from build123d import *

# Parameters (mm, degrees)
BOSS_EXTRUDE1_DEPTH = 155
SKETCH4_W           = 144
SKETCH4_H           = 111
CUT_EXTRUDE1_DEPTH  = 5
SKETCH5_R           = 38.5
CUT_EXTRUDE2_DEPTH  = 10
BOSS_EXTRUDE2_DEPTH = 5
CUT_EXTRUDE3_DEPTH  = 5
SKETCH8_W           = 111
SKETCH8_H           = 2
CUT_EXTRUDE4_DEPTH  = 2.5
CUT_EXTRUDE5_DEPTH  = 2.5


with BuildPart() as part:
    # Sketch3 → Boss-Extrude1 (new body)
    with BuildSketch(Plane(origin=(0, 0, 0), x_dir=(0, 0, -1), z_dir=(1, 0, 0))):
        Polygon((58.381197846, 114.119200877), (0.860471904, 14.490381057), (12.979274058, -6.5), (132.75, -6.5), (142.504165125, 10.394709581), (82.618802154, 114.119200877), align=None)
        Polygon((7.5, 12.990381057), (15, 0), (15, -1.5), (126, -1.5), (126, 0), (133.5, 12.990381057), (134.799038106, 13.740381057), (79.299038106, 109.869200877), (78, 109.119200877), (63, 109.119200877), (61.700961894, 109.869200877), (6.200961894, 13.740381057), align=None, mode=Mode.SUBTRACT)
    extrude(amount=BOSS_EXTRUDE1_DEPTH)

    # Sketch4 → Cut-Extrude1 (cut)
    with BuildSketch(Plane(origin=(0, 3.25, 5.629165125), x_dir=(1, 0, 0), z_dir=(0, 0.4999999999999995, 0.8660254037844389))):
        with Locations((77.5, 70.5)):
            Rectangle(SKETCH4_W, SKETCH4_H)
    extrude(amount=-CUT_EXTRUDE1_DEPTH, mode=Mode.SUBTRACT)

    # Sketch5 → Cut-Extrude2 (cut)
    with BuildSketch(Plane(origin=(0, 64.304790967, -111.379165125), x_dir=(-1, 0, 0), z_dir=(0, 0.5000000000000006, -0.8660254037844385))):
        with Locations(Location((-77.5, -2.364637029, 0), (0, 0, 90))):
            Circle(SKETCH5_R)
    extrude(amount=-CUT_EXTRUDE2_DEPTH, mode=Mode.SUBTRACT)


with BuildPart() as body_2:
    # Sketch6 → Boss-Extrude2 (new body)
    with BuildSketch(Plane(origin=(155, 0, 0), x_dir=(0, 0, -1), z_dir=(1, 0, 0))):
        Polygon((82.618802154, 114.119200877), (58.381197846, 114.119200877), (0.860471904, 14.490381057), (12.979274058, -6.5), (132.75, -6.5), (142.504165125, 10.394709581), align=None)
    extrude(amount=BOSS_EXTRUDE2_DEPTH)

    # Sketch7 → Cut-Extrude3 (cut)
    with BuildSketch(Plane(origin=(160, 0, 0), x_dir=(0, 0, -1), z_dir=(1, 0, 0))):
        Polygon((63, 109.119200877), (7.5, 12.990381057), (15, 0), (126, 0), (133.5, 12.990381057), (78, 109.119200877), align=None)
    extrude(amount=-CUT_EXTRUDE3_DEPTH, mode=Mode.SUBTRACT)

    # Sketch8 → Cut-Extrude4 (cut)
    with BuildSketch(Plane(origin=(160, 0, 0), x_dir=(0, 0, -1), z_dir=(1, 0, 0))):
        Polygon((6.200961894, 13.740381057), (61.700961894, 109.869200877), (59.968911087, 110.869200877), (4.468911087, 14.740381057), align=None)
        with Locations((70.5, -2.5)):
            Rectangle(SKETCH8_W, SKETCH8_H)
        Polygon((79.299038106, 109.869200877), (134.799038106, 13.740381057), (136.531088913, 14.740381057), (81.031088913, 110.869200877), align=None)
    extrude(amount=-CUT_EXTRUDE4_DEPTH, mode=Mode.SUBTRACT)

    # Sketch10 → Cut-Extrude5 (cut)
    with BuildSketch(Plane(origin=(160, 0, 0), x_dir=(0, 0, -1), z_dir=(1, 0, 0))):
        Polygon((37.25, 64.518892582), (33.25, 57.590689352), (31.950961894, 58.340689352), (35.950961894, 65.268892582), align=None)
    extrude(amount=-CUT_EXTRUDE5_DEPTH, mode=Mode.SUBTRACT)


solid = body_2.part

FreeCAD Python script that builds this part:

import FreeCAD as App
import Part
import Sketcher
Q = App.Units.Quantity

doc = App.newDocument("Part")
params = doc.addObject("Spreadsheet::Sheet", "Params")
for row, (alias, value) in enumerate([
    ("sketch1_height", "15 mm"),
    ("sketch1_height2", "111 mm"),
    ("sketch1_length", "15 mm"),
    ("sketch1_width", "1.5 mm"),
    ("sketch1_length2", "1.5 mm"),
    ("pad1_length", "155 mm"),
    ("sketch2_width", "144 mm"),
    ("sketch2_height", "111 mm"),
    ("pocket1_length", "5 mm"),
    ("sketch3_diameter", "77 mm"),
    ("pocket2_length", "10 mm"),
    ("pad2_length", "5 mm"),
    ("sketch5_height", "111 mm"),
    ("sketch5_height2", "15 mm"),
    ("sketch5_length", "111 mm"),
    ("pocket3_length", "5 mm"),
    ("sketch6_width", "2 mm"),
    ("sketch6_height", "111 mm"),
    ("sketch6_length", "111 mm"),
    ("sketch6_length2", "2 mm"),
    ("pocket4_length", "2.5 mm"),
    ("sketch7_length", "8 mm"),
    ("sketch7_length2", "1.5 mm"),
    ("pocket5_length", "2.5 mm"),
], start=1):
    params.set(f"A{row}", alias)
    params.set(f"B{row}", "=" + value)
    params.setAlias(f"B{row}", alias)

body = doc.addObject("PartDesign::Body", "Body")

# Sketch on YZ plane
sketch1 = body.newObject("Sketcher::SketchObject", "Sketch")
sketch1.AttachmentSupport = (doc.getObject("YZ_Plane"), [""])
sketch1.MapMode = "FlatFace"
sketch1.addGeometry(Part.LineSegment(App.Vector(114.1, -58.4, 0), App.Vector(14.5, -0.9, 0)), False)
sketch1.addGeometry(Part.LineSegment(App.Vector(14.5, -0.9, 0), App.Vector(-6.5, -13, 0)), False)
sketch1.addGeometry(Part.LineSegment(App.Vector(-6.5, -13, 0), App.Vector(-6.5, -132.8, 0)), False)
sketch1.addGeometry(Part.LineSegment(App.Vector(-6.5, -132.8, 0), App.Vector(10.4, -142.5, 0)), False)
sketch1.addGeometry(Part.LineSegment(App.Vector(10.4, -142.5, 0), App.Vector(114.1, -82.6, 0)), False)
sketch1.addGeometry(Part.LineSegment(App.Vector(114.1, -82.6, 0), App.Vector(114.1, -58.4, 0)), False)
sketch1.addGeometry(Part.LineSegment(App.Vector(0, -15, 0), App.Vector(13, -7.5, 0)), False)
sketch1.addGeometry(Part.LineSegment(App.Vector(13, -7.5, 0), App.Vector(13.7, -6.2, 0)), False)
sketch1.addGeometry(Part.LineSegment(App.Vector(13.7, -6.2, 0), App.Vector(109.9, -61.7, 0)), False)
sketch1.addGeometry(Part.LineSegment(App.Vector(109.9, -61.7, 0), App.Vector(109.1, -63, 0)), False)
sketch1.addGeometry(Part.LineSegment(App.Vector(109.1, -63, 0), App.Vector(109.1, -78, 0)), False)
sketch1.addGeometry(Part.LineSegment(App.Vector(109.1, -78, 0), App.Vector(109.9, -79.3, 0)), False)
sketch1.addGeometry(Part.LineSegment(App.Vector(109.9, -79.3, 0), App.Vector(13.7, -134.8, 0)), False)
sketch1.addGeometry(Part.LineSegment(App.Vector(13.7, -134.8, 0), App.Vector(13, -133.5, 0)), False)
sketch1.addGeometry(Part.LineSegment(App.Vector(13, -133.5, 0), App.Vector(0, -126, 0)), False)
sketch1.addGeometry(Part.LineSegment(App.Vector(0, -126, 0), App.Vector(-1.5, -126, 0)), False)
sketch1.addGeometry(Part.LineSegment(App.Vector(-1.5, -126, 0), App.Vector(-1.5, -15, 0)), False)
sketch1.addGeometry(Part.LineSegment(App.Vector(-1.5, -15, 0), App.Vector(0, -15, 0)), False)
sketch1.addConstraint(Sketcher.Constraint("Coincident", 0, 2, 1, 1))
sketch1.addConstraint(Sketcher.Constraint("Coincident", 1, 2, 2, 1))
sketch1.addConstraint(Sketcher.Constraint("Coincident", 2, 2, 3, 1))
sketch1.addConstraint(Sketcher.Constraint("Coincident", 3, 2, 4, 1))
sketch1.addConstraint(Sketcher.Constraint("Coincident", 4, 2, 5, 1))
sketch1.addConstraint(Sketcher.Constraint("Coincident", 5, 2, 0, 1))
sketch1.addConstraint(Sketcher.Constraint("Coincident", 6, 2, 7, 1))
sketch1.addConstraint(Sketcher.Constraint("Coincident", 7, 2, 8, 1))
sketch1.addConstraint(Sketcher.Constraint("Coincident", 8, 2, 9, 1))
sketch1.addConstraint(Sketcher.Constraint("Coincident", 9, 2, 10, 1))
sketch1.addConstraint(Sketcher.Constraint("Coincident", 10, 2, 11, 1))
sketch1.addConstraint(Sketcher.Constraint("Coincident", 11, 2, 12, 1))
sketch1.addConstraint(Sketcher.Constraint("Coincident", 12, 2, 13, 1))
sketch1.addConstraint(Sketcher.Constraint("Coincident", 13, 2, 14, 1))
sketch1.addConstraint(Sketcher.Constraint("Coincident", 14, 2, 15, 1))
sketch1.addConstraint(Sketcher.Constraint("Coincident", 15, 2, 16, 1))
sketch1.addConstraint(Sketcher.Constraint("Coincident", 16, 2, 17, 1))
sketch1.addConstraint(Sketcher.Constraint("Coincident", 17, 2, 6, 1))
sketch1.addConstraint(Sketcher.Constraint("Vertical", 2))
sketch1.addConstraint(Sketcher.Constraint("Vertical", 5))
sketch1.addConstraint(Sketcher.Constraint("Vertical", 10))
sketch1.addConstraint(Sketcher.Constraint("Horizontal", 15))
sketch1.addConstraint(Sketcher.Constraint("Vertical", 16))
sketch1.addConstraint(Sketcher.Constraint("Horizontal", 17))
sketch1.addConstraint(Sketcher.Constraint("PointOnObject", 14, 2, -2))
sketch1.addConstraint(Sketcher.Constraint("PointOnObject", 17, 2, -2))
sketch1.addConstraint(Sketcher.Constraint("Parallel", 0, 3))
sketch1.addConstraint(Sketcher.Constraint("Parallel", 1, 4))
sketch1.addConstraint(Sketcher.Constraint("Parallel", 4, 6))
sketch1.addConstraint(Sketcher.Constraint("Perpendicular", 3, 7))
sketch1.addConstraint(Sketcher.Constraint("Perpendicular", 7, 8))
sketch1.addConstraint(Sketcher.Constraint("Perpendicular", 8, 9))
sketch1.addConstraint(Sketcher.Constraint("Perpendicular", 6, 11))
sketch1.addConstraint(Sketcher.Constraint("Perpendicular", 11, 12))
sketch1.addConstraint(Sketcher.Constraint("Perpendicular", 12, 13))
sketch1.addConstraint(Sketcher.Constraint("Perpendicular", 9, 14))
sketch1.addConstraint(Sketcher.Constraint("Vertical", 8, 2, 11, 2))
sketch1.addConstraint(Sketcher.Constraint("Vertical", 7, 2, 12, 2))
sketch1.addConstraint(Sketcher.Constraint("Vertical", 6, 2, 13, 2))
sketch1.addConstraint(Sketcher.Constraint("Equal", 7, 9))
sketch1.addConstraint(Sketcher.Constraint("Equal", 9, 11))
sketch1.addConstraint(Sketcher.Constraint("DistanceY", 10, 2, 10, 1, Q("15 mm")))
sketch1.addConstraint(Sketcher.Constraint("DistanceY", 16, 1, 16, 2, Q("111 mm")))
sketch1.addConstraint(Sketcher.Constraint("Angle", 0, Q("150 deg")))
sketch1.addConstraint(Sketcher.Constraint("Distance", 6, Q("15 mm")))
sketch1.addConstraint(Sketcher.Constraint("DistanceX", 15, 2, 15, 1, Q("1.5 mm")))
sketch1.addConstraint(Sketcher.Constraint("DistanceY", 9, 2, -1, 1, Q("63 mm")))
sketch1.addConstraint(Sketcher.Constraint("DistanceX", 9, 2, 5, 2, Q("5 mm")))
sketch1.addConstraint(Sketcher.Constraint("DistanceX", 2, 2, 15, 2, Q("5 mm")))
sketch1.addConstraint(Sketcher.Constraint("Distance", 7, Q("1.5 mm")))
sketch1.addConstraint(Sketcher.Constraint("DistanceX", 6, 2, 0, 2, Q("1.5 mm")))
sketch1.addConstraint(Sketcher.Constraint("DistanceY", 2, 2, -1, 1, Q("132.75 mm")))
sketch1.addConstraint(Sketcher.Constraint("Distance", 3, Q("19.50833 mm")))
sketch1.addConstraint(Sketcher.Constraint("DistanceY", 2, 2, 2, 1, Q("119.770726 mm")))
sketch1.setExpression("Constraints[41]", "Params.sketch1_height")
sketch1.setExpression("Constraints[42]", "Params.sketch1_height2")
sketch1.setExpression("Constraints[44]", "Params.sketch1_length")
sketch1.setExpression("Constraints[45]", "Params.sketch1_width")
sketch1.setExpression("Constraints[49]", "Params.sketch1_length2")
pad1 = body.newObject("PartDesign::Pad", "Pad")
pad1.Profile = sketch1
pad1.setExpression("Length", "Params.pad1_length")

# Sketch on an angled plane
sketch2 = body.newObject("Sketcher::SketchObject", "Sketch001")
sketch2.Placement = App.Placement(App.Vector(0, 3.25, 5.629165), App.Rotation(App.Vector(1, 0, 0), App.Vector(0, 0.866025404, -0.5), App.Vector(0, 0.5, 0.866025404), "ZXY"))
sketch2.addGeometry(Part.LineSegment(App.Vector(6, 126, 0), App.Vector(6, 15, 0)), False)
sketch2.addGeometry(Part.LineSegment(App.Vector(6, 15, 0), App.Vector(150, 15, 0)), False)
sketch2.addGeometry(Part.LineSegment(App.Vector(150, 15, 0), App.Vector(150, 126, 0)), False)
sketch2.addGeometry(Part.LineSegment(App.Vector(150, 126, 0), App.Vector(6, 126, 0)), False)
sketch2.addConstraint(Sketcher.Constraint("Coincident", 0, 2, 1, 1))
sketch2.addConstraint(Sketcher.Constraint("Coincident", 1, 2, 2, 1))
sketch2.addConstraint(Sketcher.Constraint("Coincident", 2, 2, 3, 1))
sketch2.addConstraint(Sketcher.Constraint("Coincident", 3, 2, 0, 1))
sketch2.addConstraint(Sketcher.Constraint("Vertical", 0))
sketch2.addConstraint(Sketcher.Constraint("Horizontal", 1))
sketch2.addConstraint(Sketcher.Constraint("Vertical", 2))
sketch2.addConstraint(Sketcher.Constraint("Horizontal", 3))
sketch2.addConstraint(Sketcher.Constraint("DistanceX", 1, 1, 1, 2, Q("144 mm")))
sketch2.addConstraint(Sketcher.Constraint("DistanceY", 0, 2, 0, 1, Q("111 mm")))
sketch2.addConstraint(Sketcher.Constraint("DistanceY", -1, 1, 0, 2, Q("15 mm")))
sketch2.addConstraint(Sketcher.Constraint("DistanceX", -1, 1, 0, 2, Q("5.5 mm")))
sketch2.setExpression("Constraints[8]", "Params.sketch2_width")
sketch2.setExpression("Constraints[9]", "Params.sketch2_height")
pocket1 = body.newObject("PartDesign::Pocket", "Pocket")
pocket1.Profile = sketch2
pocket1.setExpression("Length", "Params.pocket1_length")

# Sketch on an angled plane
sketch3 = body.newObject("Sketcher::SketchObject", "Sketch002")
sketch3.Placement = App.Placement(App.Vector(0, 64.304791, -111.379165), App.Rotation(App.Vector(-1, 0, 0), App.Vector(0, 0.866025404, 0.5), App.Vector(0, 0.5, -0.866025404), "ZXY"))
sketch3.addGeometry(Part.Circle(App.Vector(-78, -2, 0), App.Vector(0, 0, 1), 38), False)
sketch3.addConstraint(Sketcher.Constraint("Diameter", 0, Q("77 mm")))
sketch3.addConstraint(Sketcher.Constraint("DistanceX", 0, 3, -1, 1, Q("77.5 mm")))
sketch3.addConstraint(Sketcher.Constraint("DistanceY", 0, 3, -1, 1, Q("2.364637 mm")))
sketch3.setExpression("Constraints[0]", "Params.sketch3_diameter")
pocket2 = body.newObject("PartDesign::Pocket", "Pocket001")
pocket2.Profile = sketch3
pocket2.setExpression("Length", "Params.pocket2_length")
body2 = doc.addObject("PartDesign::Body", "Body001")

# Sketch on YZ plane
sketch4 = body2.newObject("Sketcher::SketchObject", "Sketch003")
sketch4.AttachmentSupport = (doc.getObject("YZ_Plane001"), [""])
sketch4.MapMode = "FlatFace"
sketch4.AttachmentOffset = App.Placement(App.Vector(0, 0, 155), App.Rotation())
sketch4.addGeometry(Part.LineSegment(App.Vector(114, -83, 0), App.Vector(114, -58, 0)), False)
sketch4.addGeometry(Part.LineSegment(App.Vector(114, -58, 0), App.Vector(14, -1, 0)), False)
sketch4.addGeometry(Part.LineSegment(App.Vector(14, -1, 0), App.Vector(-6, -13, 0)), False)
sketch4.addGeometry(Part.LineSegment(App.Vector(-6, -13, 0), App.Vector(-6, -133, 0)), False)
sketch4.addGeometry(Part.LineSegment(App.Vector(-6, -133, 0), App.Vector(10, -143, 0)), False)
sketch4.addGeometry(Part.LineSegment(App.Vector(10, -143, 0), App.Vector(114, -83, 0)), False)
sketch4.addConstraint(Sketcher.Constraint("Coincident", 0, 2, 1, 1))
sketch4.addConstraint(Sketcher.Constraint("Coincident", 1, 2, 2, 1))
sketch4.addConstraint(Sketcher.Constraint("Coincident", 2, 2, 3, 1))
sketch4.addConstraint(Sketcher.Constraint("Coincident", 3, 2, 4, 1))
sketch4.addConstraint(Sketcher.Constraint("Coincident", 4, 2, 5, 1))
sketch4.addConstraint(Sketcher.Constraint("Coincident", 5, 2, 0, 1))
sketch4.addConstraint(Sketcher.Constraint("Vertical", 0))
sketch4.addConstraint(Sketcher.Constraint("Vertical", 3))
sketch4.addConstraint(Sketcher.Constraint("Parallel", 1, 4))
sketch4.addConstraint(Sketcher.Constraint("Parallel", 2, 5))
sketch4.addConstraint(Sketcher.Constraint("Angle", 1, Q("150 deg")))
sketch4.addConstraint(Sketcher.Constraint("Angle", 2, Q("-150 deg")))
sketch4.addConstraint(Sketcher.Constraint("DistanceX", 2, 2, -1, 1, Q("6.5 mm")))
sketch4.addConstraint(Sketcher.Constraint("DistanceY", 3, 2, -1, 1, Q("132.75 mm")))
sketch4.addConstraint(Sketcher.Constraint("DistanceX", -1, 1, 0, 2, Q("114.119201 mm")))
sketch4.addConstraint(Sketcher.Constraint("Distance", 1, Q("115.041452 mm")))
sketch4.addConstraint(Sketcher.Constraint("Distance", 4, Q("19.50833 mm")))
sketch4.addConstraint(Sketcher.Constraint("DistanceY", 0, 1, 0, 2, Q("24.237604 mm")))
pad2 = body2.newObject("PartDesign::Pad", "Pad001")
pad2.Profile = sketch4
pad2.setExpression("Length", "Params.pad2_length")

# Sketch on YZ plane
sketch5 = body2.newObject("Sketcher::SketchObject", "Sketch004")
sketch5.AttachmentSupport = (doc.getObject("YZ_Plane001"), [""])
sketch5.MapMode = "FlatFace"
sketch5.AttachmentOffset = App.Placement(App.Vector(0, 0, 160), App.Rotation())
sketch5.addGeometry(Part.LineSegment(App.Vector(109, -63, 0), App.Vector(13, -8, 0)), False)
sketch5.addGeometry(Part.LineSegment(App.Vector(13, -8, 0), App.Vector(0, -15, 0)), False)
sketch5.addGeometry(Part.LineSegment(App.Vector(0, -15, 0), App.Vector(0, -126, 0)), False)
sketch5.addGeometry(Part.LineSegment(App.Vector(0, -126, 0), App.Vector(13, -134, 0)), False)
sketch5.addGeometry(Part.LineSegment(App.Vector(13, -134, 0), App.Vector(109, -78, 0)), False)
sketch5.addGeometry(Part.LineSegment(App.Vector(109, -78, 0), App.Vector(109, -63, 0)), False)
sketch5.addConstraint(Sketcher.Constraint("Coincident", 0, 2, 1, 1))
sketch5.addConstraint(Sketcher.Constraint("Coincident", 1, 2, 2, 1))
sketch5.addConstraint(Sketcher.Constraint("Coincident", 2, 2, 3, 1))
sketch5.addConstraint(Sketcher.Constraint("Coincident", 3, 2, 4, 1))
sketch5.addConstraint(Sketcher.Constraint("Coincident", 4, 2, 5, 1))
sketch5.addConstraint(Sketcher.Constraint("Coincident", 5, 2, 0, 1))
sketch5.addConstraint(Sketcher.Constraint("Vertical", 2))
sketch5.addConstraint(Sketcher.Constraint("Vertical", 5))
sketch5.addConstraint(Sketcher.Constraint("PointOnObject", 1, 2, -2))
sketch5.addConstraint(Sketcher.Constraint("Parallel", 0, 3))
sketch5.addConstraint(Sketcher.Constraint("Parallel", 1, 4))
sketch5.addConstraint(Sketcher.Constraint("Vertical", 0, 2, 3, 2))
sketch5.addConstraint(Sketcher.Constraint("Equal", 1, 3))
sketch5.addConstraint(Sketcher.Constraint("DistanceY", 2, 2, 2, 1, Q("111 mm")))
sketch5.addConstraint(Sketcher.Constraint("DistanceY", 5, 1, 5, 2, Q("15 mm")))
sketch5.addConstraint(Sketcher.Constraint("Angle", 0, Q("150 deg")))
sketch5.addConstraint(Sketcher.Constraint("Distance", 0, Q("111 mm")))
sketch5.addConstraint(Sketcher.Constraint("DistanceY", 1, 2, -1, 1, Q("15 mm")))
sketch5.setExpression("Constraints[13]", "Params.sketch5_height")
sketch5.setExpression("Constraints[14]", "Params.sketch5_height2")
sketch5.setExpression("Constraints[16]", "Params.sketch5_length")
pocket3 = body2.newObject("PartDesign::Pocket", "Pocket002")
pocket3.Profile = sketch5
pocket3.setExpression("Length", "Params.pocket3_length")

# Sketch on YZ plane
sketch6 = body2.newObject("Sketcher::SketchObject", "Sketch005")
sketch6.AttachmentSupport = (doc.getObject("YZ_Plane001"), [""])
sketch6.MapMode = "FlatFace"
sketch6.AttachmentOffset = App.Placement(App.Vector(0, 0, 160), App.Rotation())
sketch6.addGeometry(Part.LineSegment(App.Vector(13.7, -6.2, 0), App.Vector(109.9, -61.7, 0)), False)
sketch6.addGeometry(Part.LineSegment(App.Vector(109.9, -61.7, 0), App.Vector(110.9, -60, 0)), False)
sketch6.addGeometry(Part.LineSegment(App.Vector(110.9, -60, 0), App.Vector(14.7, -4.5, 0)), False)
sketch6.addGeometry(Part.LineSegment(App.Vector(14.7, -4.5, 0), App.Vector(13.7, -6.2, 0)), False)
sketch6.addGeometry(Part.LineSegment(App.Vector(-1.5, -15, 0), App.Vector(-3.5, -15, 0)), False)
sketch6.addGeometry(Part.LineSegment(App.Vector(-3.5, -15, 0), App.Vector(-3.5, -126, 0)), False)
sketch6.addGeometry(Part.LineSegment(App.Vector(-3.5, -126, 0), App.Vector(-1.5, -126, 0)), False)
sketch6.addGeometry(Part.LineSegment(App.Vector(-1.5, -126, 0), App.Vector(-1.5, -15, 0)), False)
sketch6.addGeometry(Part.LineSegment(App.Vector(109.9, -79.3, 0), App.Vector(13.7, -134.8, 0)), False)
sketch6.addGeometry(Part.LineSegment(App.Vector(13.7, -134.8, 0), App.Vector(14.7, -136.5, 0)), False)
sketch6.addGeometry(Part.LineSegment(App.Vector(14.7, -136.5, 0), App.Vector(110.9, -81, 0)), False)
sketch6.addGeometry(Part.LineSegment(App.Vector(110.9, -81, 0), App.Vector(109.9, -79.3, 0)), False)
sketch6.addConstraint(Sketcher.Constraint("Coincident", 0, 2, 1, 1))
sketch6.addConstraint(Sketcher.Constraint("Coincident", 1, 2, 2, 1))
sketch6.addConstraint(Sketcher.Constraint("Coincident", 2, 2, 3, 1))
sketch6.addConstraint(Sketcher.Constraint("Coincident", 3, 2, 0, 1))
sketch6.addConstraint(Sketcher.Constraint("Coincident", 4, 2, 5, 1))
sketch6.addConstraint(Sketcher.Constraint("Coincident", 5, 2, 6, 1))
sketch6.addConstraint(Sketcher.Constraint("Coincident", 6, 2, 7, 1))
sketch6.addConstraint(Sketcher.Constraint("Coincident", 7, 2, 4, 1))
sketch6.addConstraint(Sketcher.Constraint("Coincident", 8, 2, 9, 1))
sketch6.addConstraint(Sketcher.Constraint("Coincident", 9, 2, 10, 1))
sketch6.addConstraint(Sketcher.Constraint("Coincident", 10, 2, 11, 1))
sketch6.addConstraint(Sketcher.Constraint("Coincident", 11, 2, 8, 1))
sketch6.addConstraint(Sketcher.Constraint("Horizontal", 4))
sketch6.addConstraint(Sketcher.Constraint("Vertical", 5))
sketch6.addConstraint(Sketcher.Constraint("Horizontal", 6))
sketch6.addConstraint(Sketcher.Constraint("Vertical", 7))
sketch6.addConstraint(Sketcher.Constraint("Perpendicular", 0, 1))
sketch6.addConstraint(Sketcher.Constraint("Perpendicular", 1, 2))
sketch6.addConstraint(Sketcher.Constraint("Perpendicular", 2, 3))
sketch6.addConstraint(Sketcher.Constraint("Perpendicular", 8, 9))
sketch6.addConstraint(Sketcher.Constraint("Perpendicular", 9, 10))
sketch6.addConstraint(Sketcher.Constraint("Perpendicular", 10, 11))
sketch6.addConstraint(Sketcher.Constraint("Vertical", 3, 2, 8, 2))
sketch6.addConstraint(Sketcher.Constraint("Vertical", 2, 2, 9, 2))
sketch6.addConstraint(Sketcher.Constraint("Vertical", 1, 2, 10, 2))
sketch6.addConstraint(Sketcher.Constraint("Equal", 2, 8))
sketch6.addConstraint(Sketcher.Constraint("DistanceX", 4, 2, 4, 1, Q("2 mm")))
sketch6.addConstraint(Sketcher.Constraint("DistanceY", 5, 2, 5, 1, Q("111 mm")))
sketch6.addConstraint(Sketcher.Constraint("Angle", 0, Q("-30 deg")))
sketch6.addConstraint(Sketcher.Constraint("Distance", 0, Q("111 mm")))
sketch6.addConstraint(Sketcher.Constraint("Distance", 1, Q("2 mm")))
sketch6.addConstraint(Sketcher.Constraint("DistanceY", 4, 2, -1, 1, Q("15 mm")))
sketch6.addConstraint(Sketcher.Constraint("DistanceX", 4, 2, -1, 1, Q("3.5 mm")))
sketch6.addConstraint(Sketcher.Constraint("DistanceX", -1, 1, 0, 2, Q("109.869201 mm")))
sketch6.addConstraint(Sketcher.Constraint("DistanceY", 0, 2, -1, 1, Q("61.700962 mm")))
sketch6.addConstraint(Sketcher.Constraint("DistanceY", 8, 2, -1, 1, Q("134.799038 mm")))
sketch6.setExpression("Constraints[26]", "Params.sketch6_width")
sketch6.setExpression("Constraints[27]", "Params.sketch6_height")
sketch6.setExpression("Constraints[29]", "Params.sketch6_length")
sketch6.setExpression("Constraints[30]", "Params.sketch6_length2")
pocket4 = body2.newObject("PartDesign::Pocket", "Pocket003")
pocket4.Profile = sketch6
pocket4.setExpression("Length", "Params.pocket4_length")

# Sketch on YZ plane
sketch7 = body2.newObject("Sketcher::SketchObject", "Sketch006")
sketch7.AttachmentSupport = (doc.getObject("YZ_Plane001"), [""])
sketch7.MapMode = "FlatFace"
sketch7.AttachmentOffset = App.Placement(App.Vector(0, 0, 160), App.Rotation())
sketch7.addGeometry(Part.LineSegment(App.Vector(57.6, -33.2, 0), App.Vector(64.5, -37.2, 0)), False)
sketch7.addGeometry(Part.LineSegment(App.Vector(64.5, -37.2, 0), App.Vector(65.3, -36, 0)), False)
sketch7.addGeometry(Part.LineSegment(App.Vector(65.3, -36, 0), App.Vector(58.3, -32, 0)), False)
sketch7.addGeometry(Part.LineSegment(App.Vector(58.3, -32, 0), App.Vector(57.6, -33.2, 0)), False)
sketch7.addConstraint(Sketcher.Constraint("Coincident", 0, 2, 1, 1))
sketch7.addConstraint(Sketcher.Constraint("Coincident", 1, 2, 2, 1))
sketch7.addConstraint(Sketcher.Constraint("Coincident", 2, 2, 3, 1))
sketch7.addConstraint(Sketcher.Constraint("Coincident", 3, 2, 0, 1))
sketch7.addConstraint(Sketcher.Constraint("Perpendicular", 0, 1))
sketch7.addConstraint(Sketcher.Constraint("Perpendicular", 1, 2))
sketch7.addConstraint(Sketcher.Constraint("Perpendicular", 2, 3))
sketch7.addConstraint(Sketcher.Constraint("Angle", 0, Q("-30 deg")))
sketch7.addConstraint(Sketcher.Constraint("Distance", 0, Q("8 mm")))
sketch7.addConstraint(Sketcher.Constraint("Distance", 1, Q("1.5 mm")))
sketch7.addConstraint(Sketcher.Constraint("DistanceY", 0, 2, -1, 1, Q("37.25 mm")))
sketch7.addConstraint(Sketcher.Constraint("DistanceX", -1, 1, 2, 2, Q("58.340689 mm")))
sketch7.setExpression("Constraints[8]", "Params.sketch7_length")
sketch7.setExpression("Constraints[9]", "Params.sketch7_length2")
pocket5 = body2.newObject("PartDesign::Pocket", "Pocket004")
pocket5.Profile = sketch7
pocket5.setExpression("Length", "Params.pocket5_length")
body.Visibility = False

doc.recompute()
